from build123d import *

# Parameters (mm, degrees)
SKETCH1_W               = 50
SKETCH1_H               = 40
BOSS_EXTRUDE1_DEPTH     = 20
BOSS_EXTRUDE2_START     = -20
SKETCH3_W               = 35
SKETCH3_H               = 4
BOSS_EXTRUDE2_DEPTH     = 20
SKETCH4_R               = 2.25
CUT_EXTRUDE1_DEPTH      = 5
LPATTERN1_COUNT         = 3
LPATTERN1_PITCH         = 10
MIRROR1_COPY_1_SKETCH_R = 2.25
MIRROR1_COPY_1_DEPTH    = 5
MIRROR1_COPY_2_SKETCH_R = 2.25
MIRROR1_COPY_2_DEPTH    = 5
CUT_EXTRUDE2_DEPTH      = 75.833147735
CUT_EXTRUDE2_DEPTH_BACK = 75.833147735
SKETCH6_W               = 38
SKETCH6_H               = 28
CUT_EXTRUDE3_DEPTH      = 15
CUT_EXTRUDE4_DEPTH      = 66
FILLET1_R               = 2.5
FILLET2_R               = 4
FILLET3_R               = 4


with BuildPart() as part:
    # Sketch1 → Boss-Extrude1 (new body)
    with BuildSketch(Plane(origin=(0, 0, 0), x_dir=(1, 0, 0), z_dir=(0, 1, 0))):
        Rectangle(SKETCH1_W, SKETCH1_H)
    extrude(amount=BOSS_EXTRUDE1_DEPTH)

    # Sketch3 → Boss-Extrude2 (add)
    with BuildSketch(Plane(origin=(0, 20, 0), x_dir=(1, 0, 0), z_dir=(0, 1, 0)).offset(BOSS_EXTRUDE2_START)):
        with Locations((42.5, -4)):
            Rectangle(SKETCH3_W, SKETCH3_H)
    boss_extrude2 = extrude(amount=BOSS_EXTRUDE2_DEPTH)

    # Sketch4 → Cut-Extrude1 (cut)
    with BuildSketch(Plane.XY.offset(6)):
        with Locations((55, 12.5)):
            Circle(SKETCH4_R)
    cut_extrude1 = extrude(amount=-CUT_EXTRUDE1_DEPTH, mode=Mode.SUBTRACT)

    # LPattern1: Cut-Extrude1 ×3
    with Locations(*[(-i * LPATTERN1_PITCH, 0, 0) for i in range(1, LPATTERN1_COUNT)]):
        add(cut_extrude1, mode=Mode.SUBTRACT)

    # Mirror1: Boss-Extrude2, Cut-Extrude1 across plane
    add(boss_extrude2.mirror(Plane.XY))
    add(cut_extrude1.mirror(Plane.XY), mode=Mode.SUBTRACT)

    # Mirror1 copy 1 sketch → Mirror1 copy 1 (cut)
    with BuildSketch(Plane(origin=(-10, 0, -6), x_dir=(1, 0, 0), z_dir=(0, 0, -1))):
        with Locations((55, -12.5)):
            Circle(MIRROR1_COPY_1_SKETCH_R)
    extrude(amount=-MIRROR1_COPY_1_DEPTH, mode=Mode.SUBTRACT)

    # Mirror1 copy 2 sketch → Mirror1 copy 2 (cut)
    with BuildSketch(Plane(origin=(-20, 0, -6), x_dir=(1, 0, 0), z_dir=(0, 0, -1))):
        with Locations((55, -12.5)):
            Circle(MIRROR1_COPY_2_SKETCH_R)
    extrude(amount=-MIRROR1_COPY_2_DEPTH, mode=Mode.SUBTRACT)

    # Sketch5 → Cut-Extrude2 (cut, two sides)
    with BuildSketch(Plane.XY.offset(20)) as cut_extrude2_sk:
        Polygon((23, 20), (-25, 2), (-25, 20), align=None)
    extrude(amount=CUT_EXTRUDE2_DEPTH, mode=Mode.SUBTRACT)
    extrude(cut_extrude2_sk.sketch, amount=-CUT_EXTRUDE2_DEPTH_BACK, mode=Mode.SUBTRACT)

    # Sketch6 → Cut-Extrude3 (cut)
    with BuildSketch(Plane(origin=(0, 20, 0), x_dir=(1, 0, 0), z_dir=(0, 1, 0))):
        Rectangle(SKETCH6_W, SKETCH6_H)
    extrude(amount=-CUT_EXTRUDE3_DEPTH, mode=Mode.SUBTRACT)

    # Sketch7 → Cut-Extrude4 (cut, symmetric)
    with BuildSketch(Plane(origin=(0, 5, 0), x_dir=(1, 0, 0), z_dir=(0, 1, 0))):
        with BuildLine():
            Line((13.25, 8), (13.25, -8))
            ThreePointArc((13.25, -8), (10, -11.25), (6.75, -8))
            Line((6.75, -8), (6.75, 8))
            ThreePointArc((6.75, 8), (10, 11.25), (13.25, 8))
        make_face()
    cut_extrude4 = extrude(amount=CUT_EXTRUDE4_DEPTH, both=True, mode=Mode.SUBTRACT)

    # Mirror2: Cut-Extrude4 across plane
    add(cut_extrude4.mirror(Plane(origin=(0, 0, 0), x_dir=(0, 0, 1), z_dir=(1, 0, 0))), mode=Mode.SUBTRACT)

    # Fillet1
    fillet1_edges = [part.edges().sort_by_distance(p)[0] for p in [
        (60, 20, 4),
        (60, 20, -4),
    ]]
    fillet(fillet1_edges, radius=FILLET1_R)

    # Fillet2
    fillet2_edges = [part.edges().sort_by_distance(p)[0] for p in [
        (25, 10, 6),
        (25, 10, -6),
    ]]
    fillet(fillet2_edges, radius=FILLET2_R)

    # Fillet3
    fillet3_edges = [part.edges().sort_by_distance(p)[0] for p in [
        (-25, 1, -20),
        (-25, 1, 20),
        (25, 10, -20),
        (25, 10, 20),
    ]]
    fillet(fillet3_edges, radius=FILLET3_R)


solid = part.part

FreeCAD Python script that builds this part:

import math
import FreeCAD as App
import Part
import Sketcher
from FreeCAD import Vector
Q = App.Units.Quantity


def edges_at(feature, points):
    """Names of the edges that pass closest to the given points."""
    edges = feature.Shape.Edges
    near = lambda p: min(range(len(edges)), key=lambda i: edges[i].distToShape(Part.Vertex(*p))[0])
    return sorted({f"Edge{near(p) + 1}" for p in points})


def add_polygon(sketch, points):
    """Adds a closed chain of lines whose ends are joined by coincident constraints."""
    first, n = sketch.GeometryCount, len(points)
    for a, b in zip(points, points[1:] + points[:1]):
        sketch.addGeometry(Part.LineSegment(App.Vector(*a, 0), App.Vector(*b, 0)), False)
    for i in range(n):
        sketch.addConstraint(Sketcher.Constraint("Coincident", first + i, 2, first + (i + 1) % n, 1))

doc = App.newDocument("Part")
body = doc.addObject("PartDesign::Body", "Body")

# Sketch on XZ plane
sketch1 = body.newObject("Sketcher::SketchObject", "Sketch")
sketch1.AttachmentSupport = (doc.getObject("XZ_Plane"), [""])
sketch1.MapMode = "FlatFace"
add_polygon(sketch1, [(-25, -20), (-25, 20), (25, 20), (25, -20)])  # lines 0-3
sketch1.addConstraint([
    Sketcher.Constraint("Vertical", 0),
    Sketcher.Constraint("Horizontal", 1),
    Sketcher.Constraint("Vertical", 2),
    Sketcher.Constraint("Horizontal", 3),
    Sketcher.Constraint("Symmetric", 0, 2, 2, 2, -1, 1),
    Sketcher.Constraint("DistanceX", 1, 1, 1, 2, Q("50 mm")),
    Sketcher.Constraint("DistanceY", 0, 1, 0, 2, Q("40 mm")),
])
pad1 = body.newObject("PartDesign::Pad", "Pad")
pad1.Profile = sketch1
pad1.Length = 20
pad1.Reversed = True

# Sketch on XZ plane
sketch2 = body.newObject("Sketcher::SketchObject", "Sketch001")
sketch2.AttachmentSupport = (doc.getObject("XZ_Plane"), [""])
sketch2.MapMode = "FlatFace"
add_polygon(sketch2, [(25, 2), (25, 6), (60, 6), (60, 2)])  # lines 0-3
sketch2.addConstraint([
    Sketcher.Constraint("Vertical", 0),
    Sketcher.Constraint("Horizontal", 1),
    Sketcher.Constraint("Vertical", 2),
    Sketcher.Constraint("Horizontal", 3),
    Sketcher.Constraint("DistanceX", 1, 1, 1, 2, Q("35 mm")),
    Sketcher.Constraint("DistanceY", 0, 1, 0, 2, Q("4 mm")),
    Sketcher.Constraint("DistanceX", -1, 1, 0, 2, Q("25 mm")),
    Sketcher.Constraint("DistanceY", -1, 1, 0, 2, Q("6 mm")),
])
pad2 = body.newObject("PartDesign::Pad", "Pad001")
pad2.Profile = sketch2
pad2.Length = 20
pad2.Reversed = True

# Sketch on XY plane
sketch3 = body.newObject("Sketcher::SketchObject", "Sketch002")
sketch3.AttachmentSupport = (doc.getObject("XY_Plane"), [""])
sketch3.MapMode = "FlatFace"
sketch3.AttachmentOffset = App.Placement(Vector(0, 0, 6), App.Rotation())
sketch3.addGeometry(Part.Circle(Vector(55, 12.5, 0), Vector(0, 0, 1), 2.2), False)
sketch3.addConstraint([
    Sketcher.Constraint("Diameter", 0, Q("4.5 mm")),
    Sketcher.Constraint("DistanceX", -1, 1, 0, 3, Q("55 mm")),
    Sketcher.Constraint("DistanceY", -1, 1, 0, 3, Q("12.5 mm")),
])
pocket1 = body.newObject("PartDesign::Pocket", "Pocket")
pocket1.Profile = sketch3
pocket1.Length = 5
doc.recompute()

linearpattern = body.newObject("PartDesign::LinearPattern", "LinearPattern")
linearpattern.Originals = [pocket1]
linearpattern.Direction = (doc.getObject("X_Axis"), [""])
linearpattern.Mode = "offset"
linearpattern.Offset = 10
linearpattern.Occurrences = 3
linearpattern.Reversed = True
body.Tip = linearpattern
doc.recompute()

mirrored = body.newObject("PartDesign::Mirrored", "Mirrored")
mirrored.Originals = [pad2, pocket1]
mirrored.MirrorPlane = (doc.getObject("XY_Plane"), [""])
body.Tip = mirrored

# Sketch on XY plane
sketch4 = body.newObject("Sketcher::SketchObject", "Sketch003")
sketch4.AttachmentSupport = (doc.getObject("XY_Plane"), [""])
sketch4.MapMode = "FlatFace"
sketch4.AttachmentOffset = App.Placement(Vector(0, 0, -6), App.Rotation())
sketch4.addGeometry(Part.Circle(Vector(45, 12.5, 0), Vector(0, 0, 1), 2.2), False)
sketch4.addConstraint([
    Sketcher.Constraint("Diameter", 0, Q("4.5 mm")),
    Sketcher.Constraint("DistanceX", -1, 1, 0, 3, Q("45 mm")),
    Sketcher.Constraint("DistanceY", -1, 1, 0, 3, Q("12.5 mm")),
])
pocket2 = body.newObject("PartDesign::Pocket", "Pocket001")
pocket2.Profile = sketch4
pocket2.Length = 5
pocket2.Reversed = True

# Sketch on XY plane
sketch5 = body.newObject("Sketcher::SketchObject", "Sketch004")
sketch5.AttachmentSupport = (doc.getObject("XY_Plane"), [""])
sketch5.MapMode = "FlatFace"
sketch5.AttachmentOffset = App.Placement(Vector(0, 0, -6), App.Rotation())
sketch5.addGeometry(Part.Circle(Vector(35, 12.5, 0), Vector(0, 0, 1), 2.2), False)
sketch5.addConstraint([
    Sketcher.Constraint("Diameter", 0, Q("4.5 mm")),
    Sketcher.Constraint("DistanceX", -1, 1, 0, 3, Q("35 mm")),
    Sketcher.Constraint("DistanceY", -1, 1, 0, 3, Q("12.5 mm")),
])
pocket3 = body.newObject("PartDesign::Pocket", "Pocket002")
pocket3.Profile = sketch5
pocket3.Length = 5
pocket3.Reversed = True

# Sketch on XY plane
sketch6 = body.newObject("Sketcher::SketchObject", "Sketch005")
sketch6.AttachmentSupport = (doc.getObject("XY_Plane"), [""])
sketch6.MapMode = "FlatFace"
sketch6.AttachmentOffset = App.Placement(Vector(0, 0, 20), App.Rotation())
add_polygon(sketch6, [(-25, 2), (23, 20), (-25, 20)])  # lines 0-2
sketch6.addConstraint([
    Sketcher.Constraint("Horizontal", 1),
    Sketcher.Constraint("Vertical", 2),
    Sketcher.Constraint("DistanceX", 1, 2, 1, 1, Q("48 mm")),
    Sketcher.Constraint("DistanceY", 2, 2, 2, 1, Q("18 mm")),
    Sketcher.Constraint("DistanceX", -1, 1, 0, 2, Q("23 mm")),
    Sketcher.Constraint("DistanceY", -1, 1, 0, 2, Q("20 mm")),
])
pocket4 = body.newObject("PartDesign::Pocket", "Pocket003")
pocket4.Profile = sketch6
pocket4.Type = "ThroughAll"
pocket4.Midplane = True

# Sketch on XZ plane
sketch7 = body.newObject("Sketcher::SketchObject", "Sketch006")
sketch7.AttachmentSupport = (doc.getObject("XZ_Plane"), [""])
sketch7.MapMode = "FlatFace"
sketch7.AttachmentOffset = App.Placement(Vector(0, 0, -20), App.Rotation())
add_polygon(sketch7, [(-19, -14), (-19, 14), (19, 14), (19, -14)])  # lines 0-3
sketch7.addConstraint([
    Sketcher.Constraint("Vertical", 0),
    Sketcher.Constraint("Horizontal", 1),
    Sketcher.Constraint("Vertical", 2),
    Sketcher.Constraint("Horizontal", 3),
    Sketcher.Constraint("Symmetric", 0, 2, 2, 2, -1, 1),
    Sketcher.Constraint("DistanceX", 1, 1, 1, 2, Q("38 mm")),
    Sketcher.Constraint("DistanceY", 0, 1, 0, 2, Q("28 mm")),
])
pocket5 = body.newObject("PartDesign::Pocket", "Pocket004")
pocket5.Profile = sketch7
pocket5.Length = 15
pocket5.Reversed = True

# Sketch on XZ plane
sketch8 = body.newObject("Sketcher::SketchObject", "Sketch007")
sketch8.AttachmentSupport = (doc.getObject("XZ_Plane"), [""])
sketch8.MapMode = "FlatFace"
sketch8.AttachmentOffset = App.Placement(Vector(0, 0, -5), App.Rotation())
sketch8.addGeometry([
    Part.LineSegment(Vector(13.2, 8, 0), Vector(13.2, -8, 0)),
    Part.ArcOfCircle(Part.Circle(Vector(10, -8, 0), Vector(0, 0, 1), 3.2), math.radians(180), math.radians(360)),
    Part.LineSegment(Vector(6.8, -8, 0), Vector(6.8, 8, 0)),
    Part.ArcOfCircle(Part.Circle(Vector(10, 8, 0), Vector(0, 0, 1), 3.2), math.radians(0), math.radians(180)),
], False)
sketch8.addConstraint([
    Sketcher.Constraint("Tangent", 0, 2, 1, 2),
    Sketcher.Constraint("Tangent", 1, 1, 2, 1),
    Sketcher.Constraint("Tangent", 2, 2, 3, 2),
    Sketcher.Constraint("Tangent", 3, 1, 0, 1),
    Sketcher.Constraint("Vertical", 0),
    Sketcher.Constraint("Vertical", 2),
    Sketcher.Constraint("DistanceY", 0, 2, 0, 1, Q("16 mm")),
    Sketcher.Constraint("Radius", 1, Q("3.25 mm")),
    Sketcher.Constraint("DistanceX", -1, 1, 1, 3, Q("10 mm")),
    Sketcher.Constraint("DistanceY", 1, 3, -1, 1, Q("8 mm")),
])
pocket6 = body.newObject("PartDesign::Pocket", "Pocket005")
pocket6.Profile = sketch8
pocket6.Length = 132
pocket6.Midplane = True
doc.recompute()

mirrored2 = body.newObject("PartDesign::Mirrored", "Mirrored001")
mirrored2.Originals = [pocket6]
mirrored2.MirrorPlane = (doc.getObject("YZ_Plane"), [""])
body.Tip = mirrored2
doc.recompute()

fillet = body.newObject("PartDesign::Fillet", "Fillet")
fillet.Base = (mirrored2, edges_at(mirrored2, [(60, 20, 4), (60, 20, -4)]))
fillet.Radius = 2.5
doc.recompute()

fillet2 = body.newObject("PartDesign::Fillet", "Fillet001")
fillet2.Base = (fillet, edges_at(fillet, [(25, 10, 6), (25, 10, -6)]))
fillet2.Radius = 4
doc.recompute()

fillet3 = body.newObject("PartDesign::Fillet", "Fillet002")
fillet3.Base = (fillet2, edges_at(fillet2, [
    (-25, 1, -20),
    (-25, 1, 20),
    (25, 10, -20),
    (25, 10, 20),
]))
fillet3.Radius = 4

doc.recompute()
